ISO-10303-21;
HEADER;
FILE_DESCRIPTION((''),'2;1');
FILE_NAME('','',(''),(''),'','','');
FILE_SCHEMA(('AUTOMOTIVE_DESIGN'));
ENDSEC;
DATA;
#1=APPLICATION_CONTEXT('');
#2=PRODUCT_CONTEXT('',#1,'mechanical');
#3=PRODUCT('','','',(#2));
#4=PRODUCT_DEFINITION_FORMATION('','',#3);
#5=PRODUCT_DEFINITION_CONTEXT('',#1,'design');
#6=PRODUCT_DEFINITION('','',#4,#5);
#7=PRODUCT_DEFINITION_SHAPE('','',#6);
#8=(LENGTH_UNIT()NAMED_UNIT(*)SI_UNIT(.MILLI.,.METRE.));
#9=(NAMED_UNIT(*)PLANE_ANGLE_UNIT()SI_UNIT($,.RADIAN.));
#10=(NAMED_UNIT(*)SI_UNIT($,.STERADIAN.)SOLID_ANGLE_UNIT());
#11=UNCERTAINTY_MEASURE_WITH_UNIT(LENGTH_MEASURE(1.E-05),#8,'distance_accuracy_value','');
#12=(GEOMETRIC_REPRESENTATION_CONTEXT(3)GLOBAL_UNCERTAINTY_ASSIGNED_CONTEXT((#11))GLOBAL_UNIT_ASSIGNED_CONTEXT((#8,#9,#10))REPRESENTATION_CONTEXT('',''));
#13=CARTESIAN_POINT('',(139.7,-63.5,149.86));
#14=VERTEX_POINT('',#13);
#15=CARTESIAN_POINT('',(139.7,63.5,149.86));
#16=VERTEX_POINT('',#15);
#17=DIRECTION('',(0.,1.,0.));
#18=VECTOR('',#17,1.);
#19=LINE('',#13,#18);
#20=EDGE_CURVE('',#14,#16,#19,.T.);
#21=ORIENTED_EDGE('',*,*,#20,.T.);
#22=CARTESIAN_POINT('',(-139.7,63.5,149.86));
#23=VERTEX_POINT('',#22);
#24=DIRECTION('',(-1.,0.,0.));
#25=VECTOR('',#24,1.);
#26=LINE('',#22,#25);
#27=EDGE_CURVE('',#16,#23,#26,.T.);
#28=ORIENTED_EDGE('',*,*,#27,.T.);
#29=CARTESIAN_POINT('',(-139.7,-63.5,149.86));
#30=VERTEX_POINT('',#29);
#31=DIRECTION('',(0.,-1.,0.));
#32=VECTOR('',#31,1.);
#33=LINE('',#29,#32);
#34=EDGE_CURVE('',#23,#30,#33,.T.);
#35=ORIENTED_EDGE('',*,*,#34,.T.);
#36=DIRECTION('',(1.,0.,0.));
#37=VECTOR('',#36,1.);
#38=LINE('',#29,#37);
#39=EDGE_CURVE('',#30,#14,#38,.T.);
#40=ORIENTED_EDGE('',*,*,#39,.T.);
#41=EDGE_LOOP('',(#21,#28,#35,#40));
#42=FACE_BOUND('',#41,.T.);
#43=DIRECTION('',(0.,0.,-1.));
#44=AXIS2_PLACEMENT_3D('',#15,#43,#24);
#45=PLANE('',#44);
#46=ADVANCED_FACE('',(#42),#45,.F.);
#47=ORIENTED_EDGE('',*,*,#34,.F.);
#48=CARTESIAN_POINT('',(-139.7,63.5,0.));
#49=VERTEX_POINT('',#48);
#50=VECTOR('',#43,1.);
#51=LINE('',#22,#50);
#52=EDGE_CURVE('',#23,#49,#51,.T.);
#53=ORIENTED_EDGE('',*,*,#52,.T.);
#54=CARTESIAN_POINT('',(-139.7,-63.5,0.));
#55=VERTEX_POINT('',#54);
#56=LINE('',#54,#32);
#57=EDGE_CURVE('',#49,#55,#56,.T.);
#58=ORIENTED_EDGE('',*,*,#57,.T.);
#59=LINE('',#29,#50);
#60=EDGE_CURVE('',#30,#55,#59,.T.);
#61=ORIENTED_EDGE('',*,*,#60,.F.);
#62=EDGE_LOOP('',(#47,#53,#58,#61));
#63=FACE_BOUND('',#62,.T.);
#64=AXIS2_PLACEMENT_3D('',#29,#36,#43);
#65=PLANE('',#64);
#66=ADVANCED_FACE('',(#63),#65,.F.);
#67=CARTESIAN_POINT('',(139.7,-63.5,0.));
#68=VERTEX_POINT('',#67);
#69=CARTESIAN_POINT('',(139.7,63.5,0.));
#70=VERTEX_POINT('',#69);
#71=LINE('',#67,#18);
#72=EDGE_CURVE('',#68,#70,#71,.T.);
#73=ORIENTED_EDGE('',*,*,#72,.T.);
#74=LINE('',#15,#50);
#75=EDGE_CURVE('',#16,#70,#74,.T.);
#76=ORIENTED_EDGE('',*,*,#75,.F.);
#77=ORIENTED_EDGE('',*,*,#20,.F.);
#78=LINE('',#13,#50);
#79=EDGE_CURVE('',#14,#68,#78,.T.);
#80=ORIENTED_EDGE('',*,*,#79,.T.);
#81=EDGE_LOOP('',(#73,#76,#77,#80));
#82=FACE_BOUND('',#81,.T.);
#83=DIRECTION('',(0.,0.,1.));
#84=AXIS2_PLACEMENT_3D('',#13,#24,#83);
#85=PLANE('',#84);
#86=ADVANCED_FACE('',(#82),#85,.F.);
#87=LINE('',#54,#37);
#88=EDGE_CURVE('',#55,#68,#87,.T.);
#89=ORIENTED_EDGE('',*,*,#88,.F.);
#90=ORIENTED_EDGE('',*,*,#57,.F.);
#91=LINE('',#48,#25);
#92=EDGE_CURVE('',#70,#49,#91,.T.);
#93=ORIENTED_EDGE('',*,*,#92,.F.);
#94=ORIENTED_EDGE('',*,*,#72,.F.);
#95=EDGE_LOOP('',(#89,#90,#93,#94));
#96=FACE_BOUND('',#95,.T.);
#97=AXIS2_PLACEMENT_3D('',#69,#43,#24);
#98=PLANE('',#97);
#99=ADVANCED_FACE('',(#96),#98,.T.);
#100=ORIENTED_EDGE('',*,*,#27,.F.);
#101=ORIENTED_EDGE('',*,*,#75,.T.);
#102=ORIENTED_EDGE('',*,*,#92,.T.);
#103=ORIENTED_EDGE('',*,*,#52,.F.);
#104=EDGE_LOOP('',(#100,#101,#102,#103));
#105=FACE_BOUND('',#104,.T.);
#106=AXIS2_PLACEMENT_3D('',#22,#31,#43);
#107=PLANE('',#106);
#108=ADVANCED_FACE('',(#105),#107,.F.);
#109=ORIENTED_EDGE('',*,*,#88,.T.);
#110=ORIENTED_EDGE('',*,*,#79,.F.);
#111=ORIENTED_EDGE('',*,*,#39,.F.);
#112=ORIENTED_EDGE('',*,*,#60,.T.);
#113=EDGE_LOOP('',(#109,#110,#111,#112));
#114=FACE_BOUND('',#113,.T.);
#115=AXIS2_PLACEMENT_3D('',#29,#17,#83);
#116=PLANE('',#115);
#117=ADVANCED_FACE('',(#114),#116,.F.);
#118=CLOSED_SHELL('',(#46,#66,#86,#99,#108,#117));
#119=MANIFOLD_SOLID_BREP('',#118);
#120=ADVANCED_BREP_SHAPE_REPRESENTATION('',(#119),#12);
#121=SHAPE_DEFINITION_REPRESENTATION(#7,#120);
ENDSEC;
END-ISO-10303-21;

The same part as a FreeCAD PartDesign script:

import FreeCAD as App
import Part
import Sketcher
Q = App.Units.Quantity


def add_polygon(sketch, points):
    """Adds a closed chain of lines whose ends are joined by coincident constraints."""
    first, n = sketch.GeometryCount, len(points)
    for a, b in zip(points, points[1:] + points[:1]):
        sketch.addGeometry(Part.LineSegment(App.Vector(*a, 0), App.Vector(*b, 0)), False)
    for i in range(n):
        sketch.addConstraint(Sketcher.Constraint("Coincident", first + i, 2, first + (i + 1) % n, 1))

doc = App.newDocument("Part")
body = doc.addObject("PartDesign::Body", "Body")

sketch1 = doc.addObject("Sketcher::SketchObject", "Sketch")
body.addObject(sketch1)
sketch1.AttachmentSupport = (doc.XY_Plane, [""])
sketch1.MapMode = "FlatFace"
add_polygon(sketch1, [(-139.7, 63.5), (-139.7, -63.5), (139.7, -63.5), (139.7, 63.5)])
sketch1.addConstraint([
    Sketcher.Constraint("Vertical", 0),
    Sketcher.Constraint("Horizontal", 1),
    Sketcher.Constraint("Vertical", 2),
    Sketcher.Constraint("Horizontal", 3),
    Sketcher.Constraint("Symmetric", 0, 2, 2, 2, -1, 1),
    Sketcher.Constraint("DistanceX", 1, 1, 1, 2, Q("11 in")),
    Sketcher.Constraint("DistanceY", 0, 2, 0, 1, Q("5 in")),
])
pad1 = doc.addObject("PartDesign::Pad", "Pad")
body.addObject(pad1)
pad1.Profile = sketch1
pad1.Length = Q("5.9 in")

doc.recompute()
